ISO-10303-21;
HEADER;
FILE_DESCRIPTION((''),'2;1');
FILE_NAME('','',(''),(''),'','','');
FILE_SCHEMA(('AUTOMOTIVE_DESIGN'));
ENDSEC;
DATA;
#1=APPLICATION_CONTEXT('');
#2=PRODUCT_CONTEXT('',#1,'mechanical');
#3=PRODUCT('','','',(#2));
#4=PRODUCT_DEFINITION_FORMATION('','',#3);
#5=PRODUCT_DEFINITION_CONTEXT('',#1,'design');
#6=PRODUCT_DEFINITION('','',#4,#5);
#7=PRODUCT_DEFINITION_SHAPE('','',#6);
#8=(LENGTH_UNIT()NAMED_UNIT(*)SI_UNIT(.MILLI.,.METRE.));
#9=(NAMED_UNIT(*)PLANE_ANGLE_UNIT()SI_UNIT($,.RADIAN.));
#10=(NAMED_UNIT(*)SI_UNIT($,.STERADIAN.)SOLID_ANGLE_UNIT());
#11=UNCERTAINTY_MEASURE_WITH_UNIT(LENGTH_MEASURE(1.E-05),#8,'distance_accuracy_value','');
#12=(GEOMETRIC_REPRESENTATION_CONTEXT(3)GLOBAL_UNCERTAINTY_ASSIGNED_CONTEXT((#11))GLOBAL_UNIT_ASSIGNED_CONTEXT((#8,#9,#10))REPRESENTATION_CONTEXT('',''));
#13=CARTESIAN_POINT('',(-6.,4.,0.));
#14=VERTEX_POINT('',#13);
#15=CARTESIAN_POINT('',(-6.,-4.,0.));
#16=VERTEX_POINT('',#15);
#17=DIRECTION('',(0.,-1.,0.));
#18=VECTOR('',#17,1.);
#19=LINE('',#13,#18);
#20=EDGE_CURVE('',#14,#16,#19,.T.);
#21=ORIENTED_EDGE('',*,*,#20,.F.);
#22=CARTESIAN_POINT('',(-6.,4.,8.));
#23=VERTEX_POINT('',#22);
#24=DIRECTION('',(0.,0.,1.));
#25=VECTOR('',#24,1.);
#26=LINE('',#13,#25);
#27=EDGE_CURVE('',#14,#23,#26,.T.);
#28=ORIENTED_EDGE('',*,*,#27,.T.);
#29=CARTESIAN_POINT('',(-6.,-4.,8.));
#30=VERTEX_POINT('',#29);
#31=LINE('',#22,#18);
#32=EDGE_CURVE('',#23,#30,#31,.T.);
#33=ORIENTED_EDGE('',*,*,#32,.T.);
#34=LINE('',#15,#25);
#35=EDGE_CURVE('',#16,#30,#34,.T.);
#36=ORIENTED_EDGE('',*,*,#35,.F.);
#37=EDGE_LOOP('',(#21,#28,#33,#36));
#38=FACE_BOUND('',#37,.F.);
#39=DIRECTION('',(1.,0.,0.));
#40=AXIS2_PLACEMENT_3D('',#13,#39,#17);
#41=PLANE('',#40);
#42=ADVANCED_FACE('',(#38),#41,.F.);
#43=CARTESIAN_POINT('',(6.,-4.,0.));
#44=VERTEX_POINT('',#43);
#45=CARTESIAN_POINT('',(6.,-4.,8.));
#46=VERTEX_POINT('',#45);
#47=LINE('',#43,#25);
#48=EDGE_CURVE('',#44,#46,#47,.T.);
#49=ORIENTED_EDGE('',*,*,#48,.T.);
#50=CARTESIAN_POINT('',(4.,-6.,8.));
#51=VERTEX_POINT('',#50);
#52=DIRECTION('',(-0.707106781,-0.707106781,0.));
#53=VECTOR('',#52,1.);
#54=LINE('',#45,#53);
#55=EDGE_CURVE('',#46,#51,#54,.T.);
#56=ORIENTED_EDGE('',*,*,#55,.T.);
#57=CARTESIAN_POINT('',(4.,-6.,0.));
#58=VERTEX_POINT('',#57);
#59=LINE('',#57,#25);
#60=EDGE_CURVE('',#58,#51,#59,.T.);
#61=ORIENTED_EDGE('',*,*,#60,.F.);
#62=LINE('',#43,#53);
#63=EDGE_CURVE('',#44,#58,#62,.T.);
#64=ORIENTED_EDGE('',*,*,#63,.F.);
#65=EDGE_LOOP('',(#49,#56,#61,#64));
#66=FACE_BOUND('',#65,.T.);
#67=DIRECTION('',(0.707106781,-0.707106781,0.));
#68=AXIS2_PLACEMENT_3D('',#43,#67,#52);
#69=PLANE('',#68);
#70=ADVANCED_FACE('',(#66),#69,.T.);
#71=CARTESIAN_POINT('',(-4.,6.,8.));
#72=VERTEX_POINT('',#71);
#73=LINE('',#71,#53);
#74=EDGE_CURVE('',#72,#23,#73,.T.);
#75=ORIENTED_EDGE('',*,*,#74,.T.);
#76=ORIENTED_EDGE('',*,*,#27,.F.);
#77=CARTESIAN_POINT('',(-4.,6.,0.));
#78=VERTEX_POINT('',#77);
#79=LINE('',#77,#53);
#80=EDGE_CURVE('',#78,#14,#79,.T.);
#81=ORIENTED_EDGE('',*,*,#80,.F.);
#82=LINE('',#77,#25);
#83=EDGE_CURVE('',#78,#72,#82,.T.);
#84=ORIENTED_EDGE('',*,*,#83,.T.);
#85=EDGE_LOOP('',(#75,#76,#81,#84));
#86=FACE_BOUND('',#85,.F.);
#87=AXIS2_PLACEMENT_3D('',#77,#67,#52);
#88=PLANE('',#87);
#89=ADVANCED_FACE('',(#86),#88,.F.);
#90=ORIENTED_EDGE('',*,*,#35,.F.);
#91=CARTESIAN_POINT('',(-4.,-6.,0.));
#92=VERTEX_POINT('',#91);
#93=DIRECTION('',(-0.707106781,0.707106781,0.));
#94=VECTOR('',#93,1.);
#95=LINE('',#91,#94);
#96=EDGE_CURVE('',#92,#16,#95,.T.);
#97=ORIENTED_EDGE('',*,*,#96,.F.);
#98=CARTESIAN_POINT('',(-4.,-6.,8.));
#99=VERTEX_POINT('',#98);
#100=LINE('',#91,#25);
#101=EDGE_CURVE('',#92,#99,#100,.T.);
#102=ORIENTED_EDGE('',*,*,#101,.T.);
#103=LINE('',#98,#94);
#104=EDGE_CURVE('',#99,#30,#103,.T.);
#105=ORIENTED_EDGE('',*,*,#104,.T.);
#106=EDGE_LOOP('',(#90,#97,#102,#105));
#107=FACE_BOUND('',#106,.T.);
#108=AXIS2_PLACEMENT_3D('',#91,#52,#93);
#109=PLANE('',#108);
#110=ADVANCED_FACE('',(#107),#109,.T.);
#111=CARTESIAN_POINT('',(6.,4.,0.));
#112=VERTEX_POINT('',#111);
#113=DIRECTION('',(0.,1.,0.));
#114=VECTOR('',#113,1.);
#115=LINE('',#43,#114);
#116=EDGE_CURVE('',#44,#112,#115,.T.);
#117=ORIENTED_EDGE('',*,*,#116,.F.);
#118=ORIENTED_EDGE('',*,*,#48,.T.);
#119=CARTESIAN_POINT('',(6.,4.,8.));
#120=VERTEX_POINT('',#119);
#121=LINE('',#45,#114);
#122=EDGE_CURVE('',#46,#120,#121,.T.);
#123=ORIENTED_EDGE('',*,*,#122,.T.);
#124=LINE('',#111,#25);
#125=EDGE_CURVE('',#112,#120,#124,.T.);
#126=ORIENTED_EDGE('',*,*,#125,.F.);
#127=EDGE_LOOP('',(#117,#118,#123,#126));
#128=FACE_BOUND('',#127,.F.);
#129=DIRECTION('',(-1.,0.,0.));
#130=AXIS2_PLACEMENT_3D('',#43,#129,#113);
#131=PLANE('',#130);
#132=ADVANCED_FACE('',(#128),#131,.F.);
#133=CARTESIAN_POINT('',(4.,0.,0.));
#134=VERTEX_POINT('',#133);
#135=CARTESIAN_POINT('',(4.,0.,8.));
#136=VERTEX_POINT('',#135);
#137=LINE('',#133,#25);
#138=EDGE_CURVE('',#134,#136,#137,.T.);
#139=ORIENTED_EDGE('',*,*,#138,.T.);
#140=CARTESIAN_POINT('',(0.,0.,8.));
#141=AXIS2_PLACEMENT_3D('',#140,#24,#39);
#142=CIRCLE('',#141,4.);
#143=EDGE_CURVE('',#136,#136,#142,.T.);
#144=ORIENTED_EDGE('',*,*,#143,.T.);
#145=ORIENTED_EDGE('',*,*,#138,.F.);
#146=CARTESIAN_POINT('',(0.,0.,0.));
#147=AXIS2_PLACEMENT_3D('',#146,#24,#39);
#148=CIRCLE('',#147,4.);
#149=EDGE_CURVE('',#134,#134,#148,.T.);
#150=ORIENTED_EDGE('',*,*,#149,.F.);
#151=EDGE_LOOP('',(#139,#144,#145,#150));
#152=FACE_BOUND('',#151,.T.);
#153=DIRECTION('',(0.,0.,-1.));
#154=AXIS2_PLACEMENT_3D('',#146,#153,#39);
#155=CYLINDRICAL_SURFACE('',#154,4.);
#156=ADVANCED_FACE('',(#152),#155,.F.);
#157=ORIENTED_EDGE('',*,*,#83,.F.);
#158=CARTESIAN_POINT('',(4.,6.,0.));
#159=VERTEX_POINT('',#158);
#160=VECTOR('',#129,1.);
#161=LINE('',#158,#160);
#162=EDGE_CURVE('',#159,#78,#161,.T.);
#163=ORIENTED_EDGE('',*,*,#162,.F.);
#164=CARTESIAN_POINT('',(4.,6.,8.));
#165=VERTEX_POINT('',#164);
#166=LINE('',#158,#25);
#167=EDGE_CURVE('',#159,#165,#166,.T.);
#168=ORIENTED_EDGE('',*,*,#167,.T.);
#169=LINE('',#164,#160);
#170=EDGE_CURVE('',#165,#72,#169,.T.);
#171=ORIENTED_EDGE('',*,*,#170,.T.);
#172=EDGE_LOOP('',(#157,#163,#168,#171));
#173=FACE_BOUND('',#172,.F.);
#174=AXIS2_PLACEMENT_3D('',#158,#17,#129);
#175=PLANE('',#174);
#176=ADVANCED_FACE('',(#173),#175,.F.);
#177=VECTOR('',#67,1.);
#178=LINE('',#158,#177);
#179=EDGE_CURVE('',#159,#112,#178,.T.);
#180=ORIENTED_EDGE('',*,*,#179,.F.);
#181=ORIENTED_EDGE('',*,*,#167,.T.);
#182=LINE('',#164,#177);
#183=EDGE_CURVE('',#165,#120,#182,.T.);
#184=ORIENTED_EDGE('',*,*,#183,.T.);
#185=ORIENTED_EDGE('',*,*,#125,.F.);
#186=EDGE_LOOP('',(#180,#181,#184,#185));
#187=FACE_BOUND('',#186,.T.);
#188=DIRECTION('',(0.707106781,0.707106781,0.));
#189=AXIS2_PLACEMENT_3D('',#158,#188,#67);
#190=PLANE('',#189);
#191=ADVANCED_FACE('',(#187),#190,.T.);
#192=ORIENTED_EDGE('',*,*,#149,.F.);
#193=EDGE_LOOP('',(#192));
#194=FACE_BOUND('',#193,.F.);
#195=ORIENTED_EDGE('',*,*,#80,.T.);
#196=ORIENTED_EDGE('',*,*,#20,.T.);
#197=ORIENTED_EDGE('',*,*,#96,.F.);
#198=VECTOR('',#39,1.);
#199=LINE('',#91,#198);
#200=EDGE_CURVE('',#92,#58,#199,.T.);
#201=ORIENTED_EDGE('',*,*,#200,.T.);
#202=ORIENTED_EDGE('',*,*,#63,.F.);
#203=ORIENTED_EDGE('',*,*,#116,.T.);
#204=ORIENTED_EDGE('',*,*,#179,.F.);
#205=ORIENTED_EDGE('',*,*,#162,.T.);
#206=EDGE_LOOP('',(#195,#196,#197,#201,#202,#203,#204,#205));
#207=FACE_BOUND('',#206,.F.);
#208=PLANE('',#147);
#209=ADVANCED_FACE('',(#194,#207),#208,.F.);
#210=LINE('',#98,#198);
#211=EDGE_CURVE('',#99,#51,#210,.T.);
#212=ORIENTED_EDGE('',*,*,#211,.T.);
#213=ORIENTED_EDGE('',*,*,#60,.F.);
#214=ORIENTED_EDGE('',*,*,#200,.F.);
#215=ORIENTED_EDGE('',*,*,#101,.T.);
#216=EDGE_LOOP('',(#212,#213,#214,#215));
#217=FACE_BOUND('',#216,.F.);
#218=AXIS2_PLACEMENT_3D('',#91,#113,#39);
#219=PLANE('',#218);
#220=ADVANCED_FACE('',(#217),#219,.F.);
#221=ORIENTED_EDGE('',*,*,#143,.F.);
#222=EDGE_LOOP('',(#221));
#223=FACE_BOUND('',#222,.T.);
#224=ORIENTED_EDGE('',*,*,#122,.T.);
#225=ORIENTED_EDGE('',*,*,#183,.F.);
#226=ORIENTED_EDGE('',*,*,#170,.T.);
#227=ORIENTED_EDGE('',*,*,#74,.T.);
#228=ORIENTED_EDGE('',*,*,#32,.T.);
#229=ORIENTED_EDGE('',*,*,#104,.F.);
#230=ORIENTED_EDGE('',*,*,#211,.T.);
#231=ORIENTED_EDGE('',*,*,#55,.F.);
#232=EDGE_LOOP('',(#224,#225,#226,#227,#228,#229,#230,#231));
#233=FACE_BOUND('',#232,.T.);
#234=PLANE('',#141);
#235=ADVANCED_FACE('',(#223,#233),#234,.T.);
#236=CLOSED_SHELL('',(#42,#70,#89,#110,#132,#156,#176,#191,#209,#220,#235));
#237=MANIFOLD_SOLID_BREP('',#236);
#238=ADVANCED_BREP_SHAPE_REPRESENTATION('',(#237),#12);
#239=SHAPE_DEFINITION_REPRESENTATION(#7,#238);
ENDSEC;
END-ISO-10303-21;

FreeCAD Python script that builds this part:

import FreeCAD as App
import Part
import Sketcher
from FreeCAD import Vector

doc = App.newDocument("Part")
body = doc.addObject("PartDesign::Body", "Body")

# Sketch on XY plane
sketch1 = doc.addObject("Sketcher::SketchObject", "Sketch")
body.addObject(sketch1)
sketch1.AttachmentSupport = (doc.XY_Plane, [""])
sketch1.MapMode = "FlatFace"
sketch1.addGeometry([
    Part.LineSegment(Vector(6, 4, 0), Vector(4, 6, 0)),  # 0
    Part.LineSegment(Vector(4, 6, 0), Vector(-4, 6, 0)),  # 1
    Part.LineSegment(Vector(-4, 6, 0), Vector(-6, 4, 0)),  # 2
    Part.LineSegment(Vector(-6, 4, 0), Vector(-6, -4, 0)),  # 3
    Part.LineSegment(Vector(-6, -4, 0), Vector(-4, -6, 0)),  # 4
    Part.LineSegment(Vector(-4, -6, 0), Vector(4, -6, 0)),  # 5
    Part.LineSegment(Vector(4, -6, 0), Vector(6, -4, 0)),  # 6
    Part.LineSegment(Vector(6, -4, 0), Vector(6, 4, 0)),  # 7
    Part.Circle(Vector(0, 0, 0), Vector(0, 0, 1), 4),  # 8
], False)
sketch1.addConstraint([
    Sketcher.Constraint("Coincident", 0, 2, 1, 1),
    Sketcher.Constraint("Coincident", 1, 2, 2, 1),
    Sketcher.Constraint("Coincident", 2, 2, 3, 1),
    Sketcher.Constraint("Coincident", 3, 2, 4, 1),
    Sketcher.Constraint("Coincident", 4, 2, 5, 1),
    Sketcher.Constraint("Coincident", 5, 2, 6, 1),
    Sketcher.Constraint("Coincident", 6, 2, 7, 1),
    Sketcher.Constraint("Coincident", 7, 2, 0, 1),
    Sketcher.Constraint("Horizontal", 1),
    Sketcher.Constraint("Vertical", 3),
    Sketcher.Constraint("Horizontal", 5),
    Sketcher.Constraint("Vertical", 7),
    Sketcher.Constraint("Coincident", 8, 3, -1, 1),
    Sketcher.Constraint("Symmetric", 0, 2, 4, 2, -1, 1),
    Sketcher.Constraint("Symmetric", 2, 2, 6, 2, -1, 1),
    Sketcher.Constraint("Perpendicular", 0, 2),
    Sketcher.Constraint("Perpendicular", 2, 4),
    Sketcher.Constraint("Perpendicular", 4, 6),
    Sketcher.Constraint("Horizontal", 3, 2, 6, 2),
    Sketcher.Constraint("Vertical", 1, 2, 4, 2),
    Sketcher.Constraint("Equal", 5, 3),
    Sketcher.Constraint("Diameter", 8, 8.0),
    Sketcher.Constraint("DistanceX", 1, 2, 1, 1, 8.0),
    Sketcher.Constraint("DistanceX", 2, 2, 1, 2, 2.0),
])
pad1 = doc.addObject("PartDesign::Pad", "Pad")
body.addObject(pad1)
pad1.Profile = sketch1
pad1.Length = 8

doc.recompute()
